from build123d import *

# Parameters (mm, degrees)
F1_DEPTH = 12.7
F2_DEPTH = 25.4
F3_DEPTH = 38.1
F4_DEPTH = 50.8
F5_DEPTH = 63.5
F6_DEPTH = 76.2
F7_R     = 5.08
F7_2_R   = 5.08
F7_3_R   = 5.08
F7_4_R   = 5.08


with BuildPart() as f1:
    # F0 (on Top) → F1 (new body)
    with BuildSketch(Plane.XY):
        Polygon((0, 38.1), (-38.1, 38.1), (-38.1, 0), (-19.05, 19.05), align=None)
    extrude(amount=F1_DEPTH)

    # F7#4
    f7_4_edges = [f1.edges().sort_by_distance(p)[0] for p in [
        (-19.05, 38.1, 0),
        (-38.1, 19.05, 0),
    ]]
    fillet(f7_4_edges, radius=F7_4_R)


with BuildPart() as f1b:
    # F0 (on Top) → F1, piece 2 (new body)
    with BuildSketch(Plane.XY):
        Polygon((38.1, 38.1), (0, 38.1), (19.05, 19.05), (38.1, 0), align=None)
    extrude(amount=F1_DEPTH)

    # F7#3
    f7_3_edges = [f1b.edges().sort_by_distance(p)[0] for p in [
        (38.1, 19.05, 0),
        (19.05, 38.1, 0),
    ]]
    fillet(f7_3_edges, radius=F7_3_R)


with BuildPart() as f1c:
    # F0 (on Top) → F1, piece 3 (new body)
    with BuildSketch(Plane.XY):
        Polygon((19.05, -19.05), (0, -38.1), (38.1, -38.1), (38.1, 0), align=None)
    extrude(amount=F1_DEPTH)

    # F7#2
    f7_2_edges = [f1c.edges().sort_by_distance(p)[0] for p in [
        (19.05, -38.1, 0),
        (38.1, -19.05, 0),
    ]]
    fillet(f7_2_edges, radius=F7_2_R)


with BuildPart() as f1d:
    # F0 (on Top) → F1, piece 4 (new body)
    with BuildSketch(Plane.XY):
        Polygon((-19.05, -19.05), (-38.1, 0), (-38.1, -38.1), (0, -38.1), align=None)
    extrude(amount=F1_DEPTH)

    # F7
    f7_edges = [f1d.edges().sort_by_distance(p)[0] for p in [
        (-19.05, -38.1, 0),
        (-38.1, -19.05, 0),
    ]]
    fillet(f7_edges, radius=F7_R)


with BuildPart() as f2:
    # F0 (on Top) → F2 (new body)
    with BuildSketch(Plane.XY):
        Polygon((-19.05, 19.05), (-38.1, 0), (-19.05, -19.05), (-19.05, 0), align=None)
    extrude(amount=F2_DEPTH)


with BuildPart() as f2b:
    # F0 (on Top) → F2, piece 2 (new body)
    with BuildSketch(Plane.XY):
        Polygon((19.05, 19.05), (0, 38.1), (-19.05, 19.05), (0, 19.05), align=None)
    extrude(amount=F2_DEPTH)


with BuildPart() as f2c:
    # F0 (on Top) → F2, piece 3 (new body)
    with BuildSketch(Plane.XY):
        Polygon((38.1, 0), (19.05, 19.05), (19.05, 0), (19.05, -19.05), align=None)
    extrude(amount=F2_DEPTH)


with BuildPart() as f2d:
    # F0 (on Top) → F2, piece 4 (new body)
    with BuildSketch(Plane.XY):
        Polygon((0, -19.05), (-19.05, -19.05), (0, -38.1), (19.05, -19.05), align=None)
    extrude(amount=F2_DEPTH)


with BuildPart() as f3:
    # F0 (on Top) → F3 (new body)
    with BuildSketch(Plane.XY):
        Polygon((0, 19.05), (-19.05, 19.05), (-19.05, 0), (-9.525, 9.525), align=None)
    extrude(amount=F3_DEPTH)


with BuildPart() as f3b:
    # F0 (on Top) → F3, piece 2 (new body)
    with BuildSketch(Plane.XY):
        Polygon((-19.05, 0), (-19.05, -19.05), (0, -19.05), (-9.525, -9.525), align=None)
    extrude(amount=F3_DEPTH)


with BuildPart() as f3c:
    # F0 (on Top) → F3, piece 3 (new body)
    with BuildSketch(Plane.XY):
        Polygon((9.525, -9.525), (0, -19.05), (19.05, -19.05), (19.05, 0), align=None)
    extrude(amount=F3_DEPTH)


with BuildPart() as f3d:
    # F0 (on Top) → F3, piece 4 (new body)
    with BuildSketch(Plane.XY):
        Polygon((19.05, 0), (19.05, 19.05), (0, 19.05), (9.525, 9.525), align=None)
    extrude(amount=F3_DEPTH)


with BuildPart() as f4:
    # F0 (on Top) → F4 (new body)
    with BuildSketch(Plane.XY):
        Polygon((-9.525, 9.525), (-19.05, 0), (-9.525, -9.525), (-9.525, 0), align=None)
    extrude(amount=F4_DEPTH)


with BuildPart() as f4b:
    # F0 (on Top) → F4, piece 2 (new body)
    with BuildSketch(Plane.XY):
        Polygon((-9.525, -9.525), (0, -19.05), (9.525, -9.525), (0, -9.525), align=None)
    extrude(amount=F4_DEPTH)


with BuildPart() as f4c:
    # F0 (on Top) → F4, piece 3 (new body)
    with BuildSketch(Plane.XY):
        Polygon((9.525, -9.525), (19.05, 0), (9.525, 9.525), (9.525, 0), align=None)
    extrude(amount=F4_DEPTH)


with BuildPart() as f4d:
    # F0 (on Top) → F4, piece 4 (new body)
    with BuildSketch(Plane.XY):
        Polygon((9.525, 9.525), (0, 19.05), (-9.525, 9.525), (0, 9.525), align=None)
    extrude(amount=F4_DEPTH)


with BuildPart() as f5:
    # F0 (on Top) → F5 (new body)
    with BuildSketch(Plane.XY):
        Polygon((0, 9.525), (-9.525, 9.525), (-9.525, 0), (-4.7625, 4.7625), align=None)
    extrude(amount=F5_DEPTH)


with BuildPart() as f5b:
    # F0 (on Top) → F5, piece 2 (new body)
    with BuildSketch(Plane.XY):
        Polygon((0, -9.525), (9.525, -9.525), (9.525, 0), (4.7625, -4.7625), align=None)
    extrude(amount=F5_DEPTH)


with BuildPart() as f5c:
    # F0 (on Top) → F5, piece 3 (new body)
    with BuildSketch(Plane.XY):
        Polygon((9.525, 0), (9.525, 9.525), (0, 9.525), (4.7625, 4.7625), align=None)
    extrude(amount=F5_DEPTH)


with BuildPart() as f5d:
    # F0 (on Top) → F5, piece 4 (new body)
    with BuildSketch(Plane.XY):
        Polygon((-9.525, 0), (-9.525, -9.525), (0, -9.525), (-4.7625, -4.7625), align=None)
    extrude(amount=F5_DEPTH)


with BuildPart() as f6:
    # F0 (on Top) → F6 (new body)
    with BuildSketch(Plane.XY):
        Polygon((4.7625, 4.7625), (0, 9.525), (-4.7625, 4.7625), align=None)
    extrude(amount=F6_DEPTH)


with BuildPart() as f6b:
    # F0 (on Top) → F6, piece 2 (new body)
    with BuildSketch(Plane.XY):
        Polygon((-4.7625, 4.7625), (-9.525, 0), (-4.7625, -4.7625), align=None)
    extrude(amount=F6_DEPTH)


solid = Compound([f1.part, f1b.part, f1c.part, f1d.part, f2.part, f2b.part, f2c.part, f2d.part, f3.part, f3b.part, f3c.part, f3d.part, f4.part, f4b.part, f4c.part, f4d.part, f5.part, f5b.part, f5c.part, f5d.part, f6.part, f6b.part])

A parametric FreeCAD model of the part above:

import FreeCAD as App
import Part
import Sketcher
Q = App.Units.Quantity


def edges_at(feature, points):
    """Names of the edges that pass closest to the given points."""
    edges = feature.Shape.Edges
    near = lambda p: min(range(len(edges)), key=lambda i: edges[i].distToShape(Part.Vertex(*p))[0])
    return sorted({f"Edge{near(p) + 1}" for p in points})


def add_polygon(sketch, points):
    """Adds a closed chain of lines whose ends are joined by coincident constraints."""
    first, n = sketch.GeometryCount, len(points)
    for a, b in zip(points, points[1:] + points[:1]):
        sketch.addGeometry(Part.LineSegment(App.Vector(*a, 0), App.Vector(*b, 0)), False)
    for i in range(n):
        sketch.addConstraint(Sketcher.Constraint("Coincident", first + i, 2, first + (i + 1) % n, 1))

doc = App.newDocument("Part")
body = doc.addObject("PartDesign::Body", "Body")

sketch1 = doc.addObject("Sketcher::SketchObject", "Sketch")
body.addObject(sketch1)
sketch1.AttachmentSupport = (doc.XY_Plane, [""])
sketch1.MapMode = "FlatFace"
add_polygon(sketch1, [(0, 38.1), (-38.1, 38.1), (-38.1, 0)])
sketch1.addConstraint(Sketcher.Constraint("Horizontal", 0))
sketch1.addConstraint(Sketcher.Constraint("Vertical", 1))
sketch1.addConstraint(Sketcher.Constraint("PointOnObject", 1, 2, -1))
sketch1.addConstraint(Sketcher.Constraint("PointOnObject", 2, 2, -2))
sketch1.addConstraint(Sketcher.Constraint("Equal", 0, 1))
sketch1.addConstraint(Sketcher.Constraint("DistanceX", 0, 2, 0, 1, Q("1.5 in")))
pad1 = doc.addObject("PartDesign::Pad", "Pad")
body.addObject(pad1)
pad1.Profile = sketch1
pad1.Length = Q("0.5 in")
doc.recompute()

fillet = doc.addObject("PartDesign::Fillet", "Fillet")
body.addObject(fillet)
fillet.Base = (pad1, edges_at(pad1, [(-19.05, 38.1, 0), (-38.1, 19.05, 0)]))
fillet.Radius = Q("0.2 in")
body2 = doc.addObject("PartDesign::Body", "Body001")

sketch2 = doc.addObject("Sketcher::SketchObject", "Sketch001")
body2.addObject(sketch2)
sketch2.AttachmentSupport = (doc.getObject("XY_Plane001"), [""])
sketch2.MapMode = "FlatFace"
add_polygon(sketch2, [(38.1, 38.1), (0, 38.1), (38.1, 0)])
sketch2.addConstraint(Sketcher.Constraint("Horizontal", 0))
sketch2.addConstraint(Sketcher.Constraint("Vertical", 2))
sketch2.addConstraint(Sketcher.Constraint("PointOnObject", 0, 2, -2))
sketch2.addConstraint(Sketcher.Constraint("PointOnObject", 1, 2, -1))
sketch2.addConstraint(Sketcher.Constraint("Equal", 0, 2))
sketch2.addConstraint(Sketcher.Constraint("DistanceX", 0, 2, 0, 1, Q("1.5 in")))
pad2 = doc.addObject("PartDesign::Pad", "Pad001")
body2.addObject(pad2)
pad2.Profile = sketch2
pad2.Length = Q("0.5 in")
doc.recompute()

fillet2 = doc.addObject("PartDesign::Fillet", "Fillet001")
body2.addObject(fillet2)
fillet2.Base = (pad2, edges_at(pad2, [(38.1, 19.05, 0), (19.05, 38.1, 0)]))
fillet2.Radius = Q("0.2 in")
body3 = doc.addObject("PartDesign::Body", "Body002")

sketch3 = doc.addObject("Sketcher::SketchObject", "Sketch002")
body3.addObject(sketch3)
sketch3.AttachmentSupport = (doc.getObject("XY_Plane002"), [""])
sketch3.MapMode = "FlatFace"
add_polygon(sketch3, [(0, -38.1), (38.1, -38.1), (38.1, 0)])
sketch3.addConstraint(Sketcher.Constraint("Horizontal", 0))
sketch3.addConstraint(Sketcher.Constraint("Vertical", 1))
sketch3.addConstraint(Sketcher.Constraint("PointOnObject", 1, 2, -1))
sketch3.addConstraint(Sketcher.Constraint("PointOnObject", 2, 2, -2))
sketch3.addConstraint(Sketcher.Constraint("Equal", 0, 1))
sketch3.addConstraint(Sketcher.Constraint("DistanceX", 0, 1, 0, 2, Q("1.5 in")))
pad3 = doc.addObject("PartDesign::Pad", "Pad002")
body3.addObject(pad3)
pad3.Profile = sketch3
pad3.Length = Q("0.5 in")
doc.recompute()

fillet3 = doc.addObject("PartDesign::Fillet", "Fillet002")
body3.addObject(fillet3)
fillet3.Base = (pad3, edges_at(pad3, [(19.05, -38.1, 0), (38.1, -19.05, 0)]))
fillet3.Radius = Q("0.2 in")
body4 = doc.addObject("PartDesign::Body", "Body003")

sketch4 = doc.addObject("Sketcher::SketchObject", "Sketch003")
body4.addObject(sketch4)
sketch4.AttachmentSupport = (doc.getObject("XY_Plane003"), [""])
sketch4.MapMode = "FlatFace"
add_polygon(sketch4, [(-38.1, 0), (-38.1, -38.1), (0, -38.1)])
sketch4.addConstraint(Sketcher.Constraint("Vertical", 0))
sketch4.addConstraint(Sketcher.Constraint("Horizontal", 1))
sketch4.addConstraint(Sketcher.Constraint("PointOnObject", 1, 2, -2))
sketch4.addConstraint(Sketcher.Constraint("PointOnObject", 2, 2, -1))
sketch4.addConstraint(Sketcher.Constraint("Equal", 1, 0))
sketch4.addConstraint(Sketcher.Constraint("DistanceX", 1, 1, 1, 2, Q("1.5 in")))
pad4 = doc.addObject("PartDesign::Pad", "Pad003")
body4.addObject(pad4)
pad4.Profile = sketch4
pad4.Length = Q("0.5 in")
doc.recompute()

fillet4 = doc.addObject("PartDesign::Fillet", "Fillet003")
body4.addObject(fillet4)
fillet4.Base = (pad4, edges_at(pad4, [(-19.05, -38.1, 0), (-38.1, -19.05, 0)]))
fillet4.Radius = Q("0.2 in")
body5 = doc.addObject("PartDesign::Body", "Body004")

sketch5 = doc.addObject("Sketcher::SketchObject", "Sketch004")
body5.addObject(sketch5)
sketch5.AttachmentSupport = (doc.getObject("XY_Plane004"), [""])
sketch5.MapMode = "FlatFace"
add_polygon(sketch5, [(-19.05, 19.05), (-38.1, 0), (-19.05, -19.05)])
sketch5.addConstraint(Sketcher.Constraint("Vertical", 2))
sketch5.addConstraint(Sketcher.Constraint("PointOnObject", 0, 2, -1))
sketch5.addConstraint(Sketcher.Constraint("Perpendicular", 0, 1))
sketch5.addConstraint(Sketcher.Constraint("Equal", 0, 1))
sketch5.addConstraint(Sketcher.Constraint("DistanceY", 2, 1, 2, 2, Q("1.5 in")))
sketch5.addConstraint(Sketcher.Constraint("DistanceX", 0, 2, -1, 1, Q("1.5 in")))
pad5 = doc.addObject("PartDesign::Pad", "Pad004")
body5.addObject(pad5)
pad5.Profile = sketch5
pad5.Length = Q("1 in")
body6 = doc.addObject("PartDesign::Body", "Body005")

sketch6 = doc.addObject("Sketcher::SketchObject", "Sketch005")
body6.addObject(sketch6)
sketch6.AttachmentSupport = (doc.getObject("XY_Plane005"), [""])
sketch6.MapMode = "FlatFace"
add_polygon(sketch6, [(19.05, 19.05), (0, 38.1), (-19.05, 19.05)])
sketch6.addConstraint(Sketcher.Constraint("Horizontal", 2))
sketch6.addConstraint(Sketcher.Constraint("PointOnObject", 0, 2, -2))
sketch6.addConstraint(Sketcher.Constraint("Perpendicular", 0, 1))
sketch6.addConstraint(Sketcher.Constraint("Equal", 0, 1))
sketch6.addConstraint(Sketcher.Constraint("DistanceX", 2, 1, 2, 2, Q("1.5 in")))
sketch6.addConstraint(Sketcher.Constraint("DistanceY", -1, 1, 0, 2, Q("1.5 in")))
pad6 = doc.addObject("PartDesign::Pad", "Pad005")
body6.addObject(pad6)
pad6.Profile = sketch6
pad6.Length = Q("1 in")
body7 = doc.addObject("PartDesign::Body", "Body006")

sketch7 = doc.addObject("Sketcher::SketchObject", "Sketch006")
body7.addObject(sketch7)
sketch7.AttachmentSupport = (doc.getObject("XY_Plane006"), [""])
sketch7.MapMode = "FlatFace"
add_polygon(sketch7, [(38.1, 0), (19.05, 19.05), (19.05, -19.05)])
sketch7.addConstraint(Sketcher.Constraint("Vertical", 1))
sketch7.addConstraint(Sketcher.Constraint("PointOnObject", 2, 2, -1))
sketch7.addConstraint(Sketcher.Constraint("Perpendicular", 0, 2))
sketch7.addConstraint(Sketcher.Constraint("Equal", 0, 2))
sketch7.addConstraint(Sketcher.Constraint("DistanceY", 1, 2, 1, 1, Q("1.5 in")))
sketch7.addConstraint(Sketcher.Constraint("DistanceX", -1, 1, 2, 2, Q("1.5 in")))
pad7 = doc.addObject("PartDesign::Pad", "Pad006")
body7.addObject(pad7)
pad7.Profile = sketch7
pad7.Length = Q("1 in")
body8 = doc.addObject("PartDesign::Body", "Body007")

sketch8 = doc.addObject("Sketcher::SketchObject", "Sketch007")
body8.addObject(sketch8)
sketch8.AttachmentSupport = (doc.getObject("XY_Plane007"), [""])
sketch8.MapMode = "FlatFace"
add_polygon(sketch8, [(-19.05, -19.05), (0, -38.1), (19.05, -19.05)])
sketch8.addConstraint(Sketcher.Constraint("Horizontal", 2))
sketch8.addConstraint(Sketcher.Constraint("PointOnObject", 0, 2, -2))
sketch8.addConstraint(Sketcher.Constraint("Perpendicular", 0, 1))
sketch8.addConstraint(Sketcher.Constraint("Equal", 0, 1))
sketch8.addConstraint(Sketcher.Constraint("DistanceX", 2, 2, 2, 1, Q("1.5 in")))
sketch8.addConstraint(Sketcher.Constraint("DistanceY", 0, 2, -1, 1, Q("1.5 in")))
pad8 = doc.addObject("PartDesign::Pad", "Pad007")
body8.addObject(pad8)
pad8.Profile = sketch8
pad8.Length = Q("1 in")
body9 = doc.addObject("PartDesign::Body", "Body008")

sketch9 = doc.addObject("Sketcher::SketchObject", "Sketch008")
body9.addObject(sketch9)
sketch9.AttachmentSupport = (doc.getObject("XY_Plane008"), [""])
sketch9.MapMode = "FlatFace"
add_polygon(sketch9, [(0, 19.05), (-19.05, 19.05), (-19.05, 0)])
sketch9.addConstraint(Sketcher.Constraint("Horizontal", 0))
sketch9.addConstraint(Sketcher.Constraint("Vertical", 1))
sketch9.addConstraint(Sketcher.Constraint("PointOnObject", 1, 2, -1))
sketch9.addConstraint(Sketcher.Constraint("PointOnObject", 2, 2, -2))
sketch9.addConstraint(Sketcher.Constraint("Equal", 0, 1))
sketch9.addConstraint(Sketcher.Constraint("DistanceX", 0, 2, 0, 1, Q("0.75 in")))
pad9 = doc.addObject("PartDesign::Pad", "Pad008")
body9.addObject(pad9)
pad9.Profile = sketch9
pad9.Length = Q("1.5 in")
body10 = doc.addObject("PartDesign::Body", "Body009")

sketch10 = doc.addObject("Sketcher::SketchObject", "Sketch009")
body10.addObject(sketch10)
sketch10.AttachmentSupport = (doc.getObject("XY_Plane009"), [""])
sketch10.MapMode = "FlatFace"
add_polygon(sketch10, [(-19.05, 0), (-19.05, -19.05), (0, -19.05)])
sketch10.addConstraint(Sketcher.Constraint("Vertical", 0))
sketch10.addConstraint(Sketcher.Constraint("Horizontal", 1))
sketch10.addConstraint(Sketcher.Constraint("PointOnObject", 1, 2, -2))
sketch10.addConstraint(Sketcher.Constraint("PointOnObject", 2, 2, -1))
sketch10.addConstraint(Sketcher.Constraint("Equal", 1, 0))
sketch10.addConstraint(Sketcher.Constraint("DistanceX", 1, 1, 1, 2, Q("0.75 in")))
pad10 = doc.addObject("PartDesign::Pad", "Pad009")
body10.addObject(pad10)
pad10.Profile = sketch10
pad10.Length = Q("1.5 in")
body11 = doc.addObject("PartDesign::Body", "Body010")

sketch11 = doc.addObject("Sketcher::SketchObject", "Sketch010")
body11.addObject(sketch11)
sketch11.AttachmentSupport = (doc.getObject("XY_Plane010"), [""])
sketch11.MapMode = "FlatFace"
add_polygon(sketch11, [(0, -19.05), (19.05, -19.05), (19.05, 0)])
sketch11.addConstraint(Sketcher.Constraint("Horizontal", 0))
sketch11.addConstraint(Sketcher.Constraint("Vertical", 1))
sketch11.addConstraint(Sketcher.Constraint("PointOnObject", 1, 2, -1))
sketch11.addConstraint(Sketcher.Constraint("PointOnObject", 2, 2, -2))
sketch11.addConstraint(Sketcher.Constraint("Equal", 0, 1))
sketch11.addConstraint(Sketcher.Constraint("DistanceX", 0, 1, 0, 2, Q("0.75 in")))
pad11 = doc.addObject("PartDesign::Pad", "Pad010")
body11.addObject(pad11)
pad11.Profile = sketch11
pad11.Length = Q("1.5 in")
body12 = doc.addObject("PartDesign::Body", "Body011")

sketch12 = doc.addObject("Sketcher::SketchObject", "Sketch011")
body12.addObject(sketch12)
sketch12.AttachmentSupport = (doc.getObject("XY_Plane011"), [""])
sketch12.MapMode = "FlatFace"
add_polygon(sketch12, [(19.05, 0), (19.05, 19.05), (0, 19.05)])
sketch12.addConstraint(Sketcher.Constraint("Vertical", 0))
sketch12.addConstraint(Sketcher.Constraint("Horizontal", 1))
sketch12.addConstraint(Sketcher.Constraint("PointOnObject", 1, 2, -2))
sketch12.addConstraint(Sketcher.Constraint("PointOnObject", 2, 2, -1))
sketch12.addConstraint(Sketcher.Constraint("Equal", 1, 0))
sketch12.addConstraint(Sketcher.Constraint("DistanceX", 1, 2, 1, 1, Q("0.75 in")))
pad12 = doc.addObject("PartDesign::Pad", "Pad011")
body12.addObject(pad12)
pad12.Profile = sketch12
pad12.Length = Q("1.5 in")
body13 = doc.addObject("PartDesign::Body", "Body012")

sketch13 = doc.addObject("Sketcher::SketchObject", "Sketch012")
body13.addObject(sketch13)
sketch13.AttachmentSupport = (doc.getObject("XY_Plane012"), [""])
sketch13.MapMode = "FlatFace"
add_polygon(sketch13, [(-9.525, 9.525), (-19.05, 0), (-9.525, -9.525)])
sketch13.addConstraint(Sketcher.Constraint("Vertical", 2))
sketch13.addConstraint(Sketcher.Constraint("PointOnObject", 0, 2, -1))
sketch13.addConstraint(Sketcher.Constraint("Perpendicular", 0, 1))
sketch13.addConstraint(Sketcher.Constraint("Equal", 0, 1))
sketch13.addConstraint(Sketcher.Constraint("DistanceY", 2, 1, 2, 2, Q("0.75 in")))
sketch13.addConstraint(Sketcher.Constraint("DistanceX", 0, 2, -1, 1, Q("0.75 in")))
pad13 = doc.addObject("PartDesign::Pad", "Pad012")
body13.addObject(pad13)
pad13.Profile = sketch13
pad13.Length = Q("2 in")
body14 = doc.addObject("PartDesign::Body", "Body013")

sketch14 = doc.addObject("Sketcher::SketchObject", "Sketch013")
body14.addObject(sketch14)
sketch14.AttachmentSupport = (doc.getObject("XY_Plane013"), [""])
sketch14.MapMode = "FlatFace"
add_polygon(sketch14, [(-9.525, -9.525), (0, -19.05), (9.525, -9.525)])
sketch14.addConstraint(Sketcher.Constraint("Horizontal", 2))
sketch14.addConstraint(Sketcher.Constraint("PointOnObject", 0, 2, -2))
sketch14.addConstraint(Sketcher.Constraint("Perpendicular", 0, 1))
sketch14.addConstraint(Sketcher.Constraint("Equal", 0, 1))
sketch14.addConstraint(Sketcher.Constraint("DistanceX", 2, 2, 2, 1, Q("0.75 in")))
sketch14.addConstraint(Sketcher.Constraint("DistanceY", 0, 2, -1, 1, Q("0.75 in")))
pad14 = doc.addObject("PartDesign::Pad", "Pad013")
body14.addObject(pad14)
pad14.Profile = sketch14
pad14.Length = Q("2 in")
body15 = doc.addObject("PartDesign::Body", "Body014")

sketch15 = doc.addObject("Sketcher::SketchObject", "Sketch014")
body15.addObject(sketch15)
sketch15.AttachmentSupport = (doc.getObject("XY_Plane014"), [""])
sketch15.MapMode = "FlatFace"
add_polygon(sketch15, [(9.525, -9.525), (19.05, 0), (9.525, 9.525)])
sketch15.addConstraint(Sketcher.Constraint("Vertical", 2))
sketch15.addConstraint(Sketcher.Constraint("PointOnObject", 0, 2, -1))
sketch15.addConstraint(Sketcher.Constraint("Perpendicular", 0, 1))
sketch15.addConstraint(Sketcher.Constraint("Equal", 0, 1))
sketch15.addConstraint(Sketcher.Constraint("DistanceY", 2, 2, 2, 1, Q("0.75 in")))
sketch15.addConstraint(Sketcher.Constraint("DistanceX", -1, 1, 0, 2, Q("0.75 in")))
pad15 = doc.addObject("PartDesign::Pad", "Pad014")
body15.addObject(pad15)
pad15.Profile = sketch15
pad15.Length = Q("2 in")
body16 = doc.addObject("PartDesign::Body", "Body015")

sketch16 = doc.addObject("Sketcher::SketchObject", "Sketch015")
body16.addObject(sketch16)
sketch16.AttachmentSupport = (doc.getObject("XY_Plane015"), [""])
sketch16.MapMode = "FlatFace"
add_polygon(sketch16, [(9.525, 9.525), (0, 19.05), (-9.525, 9.525)])
sketch16.addConstraint(Sketcher.Constraint("Horizontal", 2))
sketch16.addConstraint(Sketcher.Constraint("PointOnObject", 0, 2, -2))
sketch16.addConstraint(Sketcher.Constraint("Perpendicular", 0, 1))
sketch16.addConstraint(Sketcher.Constraint("Equal", 0, 1))
sketch16.addConstraint(Sketcher.Constraint("DistanceX", 2, 1, 2, 2, Q("0.75 in")))
sketch16.addConstraint(Sketcher.Constraint("DistanceY", -1, 1, 0, 2, Q("0.75 in")))
pad16 = doc.addObject("PartDesign::Pad", "Pad015")
body16.addObject(pad16)
pad16.Profile = sketch16
pad16.Length = Q("2 in")
body17 = doc.addObject("PartDesign::Body", "Body016")

sketch17 = doc.addObject("Sketcher::SketchObject", "Sketch016")
body17.addObject(sketch17)
sketch17.AttachmentSupport = (doc.getObject("XY_Plane016"), [""])
sketch17.MapMode = "FlatFace"
add_polygon(sketch17, [(0, 9.525), (-9.525, 9.525), (-9.525, 0)])
sketch17.addConstraint(Sketcher.Constraint("Horizontal", 0))
sketch17.addConstraint(Sketcher.Constraint("Vertical", 1))
sketch17.addConstraint(Sketcher.Constraint("PointOnObject", 1, 2, -1))
sketch17.addConstraint(Sketcher.Constraint("PointOnObject", 2, 2, -2))
sketch17.addConstraint(Sketcher.Constraint("Equal", 0, 1))
sketch17.addConstraint(Sketcher.Constraint("DistanceX", 0, 2, 0, 1, Q("0.375 in")))
pad17 = doc.addObject("PartDesign::Pad", "Pad016")
body17.addObject(pad17)
pad17.Profile = sketch17
pad17.Length = Q("2.5 in")
body18 = doc.addObject("PartDesign::Body", "Body017")

sketch18 = doc.addObject("Sketcher::SketchObject", "Sketch017")
body18.addObject(sketch18)
sketch18.AttachmentSupport = (doc.getObject("XY_Plane017"), [""])
sketch18.MapMode = "FlatFace"
add_polygon(sketch18, [(0, -9.525), (9.525, -9.525), (9.525, 0)])
sketch18.addConstraint(Sketcher.Constraint("Horizontal", 0))
sketch18.addConstraint(Sketcher.Constraint("Vertical", 1))
sketch18.addConstraint(Sketcher.Constraint("PointOnObject", 1, 2, -1))
sketch18.addConstraint(Sketcher.Constraint("PointOnObject", 2, 2, -2))
sketch18.addConstraint(Sketcher.Constraint("Equal", 0, 1))
sketch18.addConstraint(Sketcher.Constraint("DistanceX", 0, 1, 0, 2, Q("0.375 in")))
pad18 = doc.addObject("PartDesign::Pad", "Pad017")
body18.addObject(pad18)
pad18.Profile = sketch18
pad18.Length = Q("2.5 in")
body19 = doc.addObject("PartDesign::Body", "Body018")

sketch19 = doc.addObject("Sketcher::SketchObject", "Sketch018")
body19.addObject(sketch19)
sketch19.AttachmentSupport = (doc.getObject("XY_Plane018"), [""])
sketch19.MapMode = "FlatFace"
add_polygon(sketch19, [(9.525, 0), (9.525, 9.525), (0, 9.525)])
sketch19.addConstraint(Sketcher.Constraint("Vertical", 0))
sketch19.addConstraint(Sketcher.Constraint("Horizontal", 1))
sketch19.addConstraint(Sketcher.Constraint("PointOnObject", 1, 2, -2))
sketch19.addConstraint(Sketcher.Constraint("PointOnObject", 2, 2, -1))
sketch19.addConstraint(Sketcher.Constraint("Equal", 1, 0))
sketch19.addConstraint(Sketcher.Constraint("DistanceX", 1, 2, 1, 1, Q("0.375 in")))
pad19 = doc.addObject("PartDesign::Pad", "Pad018")
body19.addObject(pad19)
pad19.Profile = sketch19
pad19.Length = Q("2.5 in")
body20 = doc.addObject("PartDesign::Body", "Body019")

sketch20 = doc.addObject("Sketcher::SketchObject", "Sketch019")
body20.addObject(sketch20)
sketch20.AttachmentSupport = (doc.getObject("XY_Plane019"), [""])
sketch20.MapMode = "FlatFace"
add_polygon(sketch20, [(-9.525, 0), (-9.525, -9.525), (0, -9.525)])
sketch20.addConstraint(Sketcher.Constraint("Vertical", 0))
sketch20.addConstraint(Sketcher.Constraint("Horizontal", 1))
sketch20.addConstraint(Sketcher.Constraint("PointOnObject", 1, 2, -2))
sketch20.addConstraint(Sketcher.Constraint("PointOnObject", 2, 2, -1))
sketch20.addConstraint(Sketcher.Constraint("Equal", 1, 0))
sketch20.addConstraint(Sketcher.Constraint("DistanceX", 1, 1, 1, 2, Q("0.375 in")))
pad20 = doc.addObject("PartDesign::Pad", "Pad019")
body20.addObject(pad20)
pad20.Profile = sketch20
pad20.Length = Q("2.5 in")
body21 = doc.addObject("PartDesign::Body", "Body020")

sketch21 = doc.addObject("Sketcher::SketchObject", "Sketch020")
body21.addObject(sketch21)
sketch21.AttachmentSupport = (doc.getObject("XY_Plane020"), [""])
sketch21.MapMode = "FlatFace"
add_polygon(sketch21, [(4.7625, 4.7625), (0, 9.525), (-4.7625, 4.7625)])
sketch21.addConstraint(Sketcher.Constraint("Horizontal", 2))
sketch21.addConstraint(Sketcher.Constraint("PointOnObject", 0, 2, -2))
sketch21.addConstraint(Sketcher.Constraint("Perpendicular", 0, 1))
sketch21.addConstraint(Sketcher.Constraint("Equal", 0, 1))
sketch21.addConstraint(Sketcher.Constraint("DistanceX", 2, 1, 2, 2, Q("0.375 in")))
sketch21.addConstraint(Sketcher.Constraint("DistanceY", -1, 1, 0, 2, Q("0.375 in")))
pad21 = doc.addObject("PartDesign::Pad", "Pad020")
body21.addObject(pad21)
pad21.Profile = sketch21
pad21.Length = Q("3 in")
body22 = doc.addObject("PartDesign::Body", "Body021")

sketch22 = doc.addObject("Sketcher::SketchObject", "Sketch021")
body22.addObject(sketch22)
sketch22.AttachmentSupport = (doc.getObject("XY_Plane021"), [""])
sketch22.MapMode = "FlatFace"
add_polygon(sketch22, [(-4.7625, 4.7625), (-9.525, 0), (-4.7625, -4.7625)])
sketch22.addConstraint(Sketcher.Constraint("Vertical", 2))
sketch22.addConstraint(Sketcher.Constraint("PointOnObject", 0, 2, -1))
sketch22.addConstraint(Sketcher.Constraint("Perpendicular", 0, 1))
sketch22.addConstraint(Sketcher.Constraint("Equal", 0, 1))
sketch22.addConstraint(Sketcher.Constraint("DistanceY", 2, 1, 2, 2, Q("0.375 in")))
sketch22.addConstraint(Sketcher.Constraint("DistanceX", 0, 2, -1, 1, Q("0.375 in")))
pad22 = doc.addObject("PartDesign::Pad", "Pad021")
body22.addObject(pad22)
pad22.Profile = sketch22
pad22.Length = Q("3 in")

doc.recompute()
